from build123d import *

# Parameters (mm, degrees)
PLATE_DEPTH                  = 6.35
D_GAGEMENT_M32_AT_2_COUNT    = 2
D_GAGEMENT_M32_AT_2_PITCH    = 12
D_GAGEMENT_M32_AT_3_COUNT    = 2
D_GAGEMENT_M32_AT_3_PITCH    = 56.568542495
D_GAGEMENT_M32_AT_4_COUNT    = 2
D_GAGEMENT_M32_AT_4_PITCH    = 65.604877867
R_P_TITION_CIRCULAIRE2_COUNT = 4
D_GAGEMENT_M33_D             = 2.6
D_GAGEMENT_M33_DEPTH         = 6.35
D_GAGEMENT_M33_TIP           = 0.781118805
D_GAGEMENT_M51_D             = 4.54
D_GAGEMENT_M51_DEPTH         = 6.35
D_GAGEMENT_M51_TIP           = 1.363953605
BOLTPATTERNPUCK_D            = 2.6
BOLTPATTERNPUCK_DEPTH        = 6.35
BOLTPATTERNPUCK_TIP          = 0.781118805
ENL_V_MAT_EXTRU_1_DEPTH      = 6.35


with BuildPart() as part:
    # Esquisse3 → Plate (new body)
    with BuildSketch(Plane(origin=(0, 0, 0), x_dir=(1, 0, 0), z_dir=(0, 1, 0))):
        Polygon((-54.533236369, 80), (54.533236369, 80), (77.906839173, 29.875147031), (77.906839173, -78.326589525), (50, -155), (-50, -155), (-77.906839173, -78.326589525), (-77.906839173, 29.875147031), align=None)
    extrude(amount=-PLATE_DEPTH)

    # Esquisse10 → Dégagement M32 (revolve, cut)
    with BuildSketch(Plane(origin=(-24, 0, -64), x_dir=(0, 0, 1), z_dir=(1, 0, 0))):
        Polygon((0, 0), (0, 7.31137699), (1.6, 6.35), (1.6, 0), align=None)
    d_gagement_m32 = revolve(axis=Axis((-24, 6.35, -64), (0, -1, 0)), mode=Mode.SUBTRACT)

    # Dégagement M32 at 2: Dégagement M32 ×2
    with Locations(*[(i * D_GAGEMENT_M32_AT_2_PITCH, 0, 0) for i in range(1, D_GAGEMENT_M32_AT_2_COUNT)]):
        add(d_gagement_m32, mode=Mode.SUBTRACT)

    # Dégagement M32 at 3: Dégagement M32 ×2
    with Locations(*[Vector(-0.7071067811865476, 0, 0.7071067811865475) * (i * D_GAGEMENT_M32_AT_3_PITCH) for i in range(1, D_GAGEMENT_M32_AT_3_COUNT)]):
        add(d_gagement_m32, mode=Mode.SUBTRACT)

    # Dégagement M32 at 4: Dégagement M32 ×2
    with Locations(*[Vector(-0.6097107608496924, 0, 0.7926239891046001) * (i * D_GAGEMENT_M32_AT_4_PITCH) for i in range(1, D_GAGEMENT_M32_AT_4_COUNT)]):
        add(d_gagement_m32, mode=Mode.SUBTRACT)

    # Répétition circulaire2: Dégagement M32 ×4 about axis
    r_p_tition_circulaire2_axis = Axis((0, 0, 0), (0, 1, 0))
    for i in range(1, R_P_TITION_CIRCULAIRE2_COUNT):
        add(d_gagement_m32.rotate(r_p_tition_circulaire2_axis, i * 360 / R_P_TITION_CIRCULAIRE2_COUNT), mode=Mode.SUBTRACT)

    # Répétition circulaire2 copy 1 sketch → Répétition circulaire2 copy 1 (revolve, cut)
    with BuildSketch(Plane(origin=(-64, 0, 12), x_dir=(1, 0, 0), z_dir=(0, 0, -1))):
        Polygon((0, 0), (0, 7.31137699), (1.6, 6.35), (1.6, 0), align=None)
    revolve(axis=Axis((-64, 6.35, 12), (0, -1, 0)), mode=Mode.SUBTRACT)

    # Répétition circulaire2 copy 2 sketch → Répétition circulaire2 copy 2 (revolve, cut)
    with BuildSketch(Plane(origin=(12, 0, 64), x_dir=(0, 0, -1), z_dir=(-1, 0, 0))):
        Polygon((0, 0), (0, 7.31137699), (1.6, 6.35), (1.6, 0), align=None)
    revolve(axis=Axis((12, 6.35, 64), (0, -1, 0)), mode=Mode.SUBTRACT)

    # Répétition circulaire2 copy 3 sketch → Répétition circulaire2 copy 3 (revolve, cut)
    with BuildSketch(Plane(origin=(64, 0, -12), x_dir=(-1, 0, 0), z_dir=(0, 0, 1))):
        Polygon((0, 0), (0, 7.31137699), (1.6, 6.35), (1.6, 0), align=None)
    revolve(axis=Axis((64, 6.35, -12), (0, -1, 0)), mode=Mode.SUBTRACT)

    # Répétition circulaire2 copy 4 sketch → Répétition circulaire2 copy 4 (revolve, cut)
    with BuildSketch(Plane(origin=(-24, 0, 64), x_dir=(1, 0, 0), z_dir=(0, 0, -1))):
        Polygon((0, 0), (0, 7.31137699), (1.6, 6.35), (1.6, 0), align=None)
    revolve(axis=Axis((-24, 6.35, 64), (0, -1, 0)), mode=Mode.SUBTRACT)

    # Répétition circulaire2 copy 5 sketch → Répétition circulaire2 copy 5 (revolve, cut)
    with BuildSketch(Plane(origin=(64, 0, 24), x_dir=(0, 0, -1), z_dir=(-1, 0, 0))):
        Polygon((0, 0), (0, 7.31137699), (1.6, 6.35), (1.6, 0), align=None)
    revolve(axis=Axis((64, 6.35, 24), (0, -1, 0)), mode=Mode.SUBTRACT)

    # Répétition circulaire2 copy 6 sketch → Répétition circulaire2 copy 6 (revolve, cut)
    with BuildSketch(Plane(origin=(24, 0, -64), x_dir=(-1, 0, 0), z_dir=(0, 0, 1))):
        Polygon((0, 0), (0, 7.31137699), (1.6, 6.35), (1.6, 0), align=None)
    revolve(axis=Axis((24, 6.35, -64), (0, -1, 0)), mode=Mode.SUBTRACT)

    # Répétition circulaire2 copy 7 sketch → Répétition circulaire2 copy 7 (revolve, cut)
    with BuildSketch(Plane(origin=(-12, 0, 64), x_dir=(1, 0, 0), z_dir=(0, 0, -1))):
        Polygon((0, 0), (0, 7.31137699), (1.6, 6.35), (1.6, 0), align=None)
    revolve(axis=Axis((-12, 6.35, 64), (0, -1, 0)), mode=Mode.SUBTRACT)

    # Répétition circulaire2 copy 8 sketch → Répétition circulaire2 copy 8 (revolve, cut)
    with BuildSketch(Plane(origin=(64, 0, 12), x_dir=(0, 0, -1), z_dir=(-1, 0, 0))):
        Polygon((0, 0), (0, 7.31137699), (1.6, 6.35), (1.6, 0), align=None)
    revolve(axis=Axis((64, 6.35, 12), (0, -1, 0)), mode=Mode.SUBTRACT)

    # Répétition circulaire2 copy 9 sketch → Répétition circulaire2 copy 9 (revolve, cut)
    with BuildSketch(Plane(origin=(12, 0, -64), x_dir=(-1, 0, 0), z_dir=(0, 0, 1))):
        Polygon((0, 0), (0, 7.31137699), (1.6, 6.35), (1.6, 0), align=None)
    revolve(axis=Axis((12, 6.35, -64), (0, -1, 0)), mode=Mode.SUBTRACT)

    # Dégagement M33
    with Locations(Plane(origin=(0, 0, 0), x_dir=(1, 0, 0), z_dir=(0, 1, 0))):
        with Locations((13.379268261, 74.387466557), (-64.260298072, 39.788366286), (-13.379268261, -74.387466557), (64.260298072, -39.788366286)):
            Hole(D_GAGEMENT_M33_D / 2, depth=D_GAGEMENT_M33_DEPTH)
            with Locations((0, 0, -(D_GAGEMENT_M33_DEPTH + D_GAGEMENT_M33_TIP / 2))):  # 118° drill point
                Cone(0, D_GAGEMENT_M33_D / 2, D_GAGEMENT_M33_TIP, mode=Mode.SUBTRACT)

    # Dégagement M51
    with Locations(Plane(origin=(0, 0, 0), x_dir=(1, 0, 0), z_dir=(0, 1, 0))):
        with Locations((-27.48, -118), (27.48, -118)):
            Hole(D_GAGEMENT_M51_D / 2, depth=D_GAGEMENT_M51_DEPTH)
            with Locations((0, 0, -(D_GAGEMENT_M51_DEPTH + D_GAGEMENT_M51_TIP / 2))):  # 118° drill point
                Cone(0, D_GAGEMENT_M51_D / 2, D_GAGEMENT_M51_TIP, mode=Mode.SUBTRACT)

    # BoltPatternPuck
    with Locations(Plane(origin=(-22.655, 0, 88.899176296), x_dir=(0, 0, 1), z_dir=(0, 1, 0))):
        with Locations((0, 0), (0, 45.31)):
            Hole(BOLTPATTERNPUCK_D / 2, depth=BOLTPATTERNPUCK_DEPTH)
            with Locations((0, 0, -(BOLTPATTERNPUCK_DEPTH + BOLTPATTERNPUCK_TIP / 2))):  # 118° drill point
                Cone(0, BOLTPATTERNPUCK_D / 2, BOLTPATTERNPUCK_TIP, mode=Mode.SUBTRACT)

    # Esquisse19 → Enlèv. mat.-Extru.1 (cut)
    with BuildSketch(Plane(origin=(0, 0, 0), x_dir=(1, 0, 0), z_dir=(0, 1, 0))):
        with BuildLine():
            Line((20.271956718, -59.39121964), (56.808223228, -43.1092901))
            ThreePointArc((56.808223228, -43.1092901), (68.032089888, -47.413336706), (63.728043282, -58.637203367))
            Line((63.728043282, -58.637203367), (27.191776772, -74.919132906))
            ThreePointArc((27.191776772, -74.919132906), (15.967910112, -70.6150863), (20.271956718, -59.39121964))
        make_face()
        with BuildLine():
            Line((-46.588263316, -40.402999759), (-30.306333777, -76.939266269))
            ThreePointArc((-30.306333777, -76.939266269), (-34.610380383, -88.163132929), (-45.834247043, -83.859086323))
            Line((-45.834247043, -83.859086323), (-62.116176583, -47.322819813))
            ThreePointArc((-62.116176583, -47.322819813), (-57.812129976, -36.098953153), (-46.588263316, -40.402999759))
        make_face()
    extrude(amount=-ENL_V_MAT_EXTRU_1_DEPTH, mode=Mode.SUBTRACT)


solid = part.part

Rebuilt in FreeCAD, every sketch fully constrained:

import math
import FreeCAD as App
import Part
import Sketcher
from FreeCAD import Vector
Q = App.Units.Quantity

doc = App.newDocument("Part")
body = doc.addObject("PartDesign::Body", "Body")

sketch1 = body.newObject("Sketcher::SketchObject", "Sketch")
sketch1.AttachmentSupport = (doc.getObject("XZ_Plane"), [""])
sketch1.MapMode = "FlatFace"
sketch1.addGeometry(Part.LineSegment(Vector(55, -80, 0), Vector(-55, -80, 0)), False)
sketch1.addGeometry(Part.LineSegment(Vector(-55, -80, 0), Vector(-78, -30, 0)), False)
sketch1.addGeometry(Part.LineSegment(Vector(-78, -30, 0), Vector(-78, 78, 0)), False)
sketch1.addGeometry(Part.LineSegment(Vector(-78, 78, 0), Vector(-50, 155, 0)), False)
sketch1.addGeometry(Part.LineSegment(Vector(-50, 155, 0), Vector(50, 155, 0)), False)
sketch1.addGeometry(Part.LineSegment(Vector(50, 155, 0), Vector(78, 78, 0)), False)
sketch1.addGeometry(Part.LineSegment(Vector(78, 78, 0), Vector(78, -30, 0)), False)
sketch1.addGeometry(Part.LineSegment(Vector(78, -30, 0), Vector(55, -80, 0)), False)
sketch1.addConstraint(Sketcher.Constraint("Coincident", 0, 2, 1, 1))
sketch1.addConstraint(Sketcher.Constraint("Coincident", 1, 2, 2, 1))
sketch1.addConstraint(Sketcher.Constraint("Coincident", 2, 2, 3, 1))
sketch1.addConstraint(Sketcher.Constraint("Coincident", 3, 2, 4, 1))
sketch1.addConstraint(Sketcher.Constraint("Coincident", 4, 2, 5, 1))
sketch1.addConstraint(Sketcher.Constraint("Coincident", 5, 2, 6, 1))
sketch1.addConstraint(Sketcher.Constraint("Coincident", 6, 2, 7, 1))
sketch1.addConstraint(Sketcher.Constraint("Coincident", 7, 2, 0, 1))
sketch1.addConstraint(Sketcher.Constraint("Horizontal", 0))
sketch1.addConstraint(Sketcher.Constraint("Vertical", 2))
sketch1.addConstraint(Sketcher.Constraint("Horizontal", 4))
sketch1.addConstraint(Sketcher.Constraint("Vertical", 6))
sketch1.addConstraint(Sketcher.Constraint("Symmetric", 2, 2, 5, 2, -2))
sketch1.addConstraint(Sketcher.Constraint("Horizontal", 1, 2, 6, 2))
sketch1.addConstraint(Sketcher.Constraint("Equal", 3, 5))
sketch1.addConstraint(Sketcher.Constraint("Equal", 1, 7))
sketch1.addConstraint(Sketcher.Constraint("DistanceX", 4, 1, 4, 2, Q("100 mm")))
sketch1.addConstraint(Sketcher.Constraint("Angle", 1, Q("115 deg")))
sketch1.addConstraint(Sketcher.Constraint("Angle", 3, Q("70 deg")))
sketch1.addConstraint(Sketcher.Constraint("DistanceY", 0, 2, -1, 1, Q("80 mm")))
sketch1.addConstraint(Sketcher.Constraint("DistanceY", -1, 1, 3, 2, Q("155 mm")))
sketch1.addConstraint(Sketcher.Constraint("Distance", 3, Q("81.594139 mm")))
sketch1.addConstraint(Sketcher.Constraint("DistanceX", 0, 2, 0, 1, Q("109.066473 mm")))
pad1 = body.newObject("PartDesign::Pad", "Pad")
pad1.Profile = sketch1
pad1.Length = 6.35

sketch2 = body.newObject("Sketcher::SketchObject", "Sketch001")
sketch2.AttachmentSupport = (doc.getObject("YZ_Plane"), [""])
sketch2.MapMode = "FlatFace"
sketch2.AttachmentOffset = App.Placement(Vector(0, 0, -24), App.Rotation())
sketch2.addGeometry(Part.LineSegment(Vector(-7.3, -64, 0), Vector(0, -64, 0)), False)
sketch2.addGeometry(Part.LineSegment(Vector(0, -64, 0), Vector(0, -62.4, 0)), False)
sketch2.addGeometry(Part.LineSegment(Vector(0, -62.4, 0), Vector(-6.3, -62.4, 0)), False)
sketch2.addGeometry(Part.LineSegment(Vector(-6.3, -62.4, 0), Vector(-7.3, -64, 0)), False)
sketch2.addGeometry(Part.LineSegment(Vector(0, -64, 0), Vector(-7.3, -64, 0)), True)
sketch2.addConstraint(Sketcher.Constraint("Coincident", 0, 2, 1, 1))
sketch2.addConstraint(Sketcher.Constraint("Coincident", 1, 2, 2, 1))
sketch2.addConstraint(Sketcher.Constraint("Coincident", 2, 2, 3, 1))
sketch2.addConstraint(Sketcher.Constraint("Coincident", 3, 2, 0, 1))
sketch2.addConstraint(Sketcher.Constraint("Horizontal", 0))
sketch2.addConstraint(Sketcher.Constraint("Vertical", 1))
sketch2.addConstraint(Sketcher.Constraint("Horizontal", 2))
sketch2.addConstraint(Sketcher.Constraint("Horizontal", 4))
sketch2.addConstraint(Sketcher.Constraint("Coincident", 4, 1, 0, 2))
sketch2.addConstraint(Sketcher.Constraint("PointOnObject", 0, 2, -2))
sketch2.addConstraint(Sketcher.Constraint("Equal", 0, 4))
sketch2.addConstraint(Sketcher.Constraint("Angle", 3, Q("-121 deg")))
sketch2.addConstraint(Sketcher.Constraint("DistanceY", 1, 1, 1, 2, Q("1.6 mm")))
sketch2.addConstraint(Sketcher.Constraint("DistanceY", 0, 2, -1, 1, Q("64 mm")))
sketch2.addConstraint(Sketcher.Constraint("DistanceX", 2, 2, 2, 1, Q("6.35 mm")))
groove = body.newObject("PartDesign::Groove", "Groove")
groove.Profile = sketch2
groove.ReferenceAxis = (sketch2, ["Axis0"])
groove.Angle = 360
doc.recompute()

linearpattern = body.newObject("PartDesign::LinearPattern", "LinearPattern")
linearpattern.Originals = [groove]
linearpattern.Direction = (doc.getObject("X_Axis"), [""])
linearpattern.Mode = "offset"
linearpattern.Offset = 12
linearpattern.Occurrences = 2
body.Tip = linearpattern
doc.recompute()

datumline = body.newObject("PartDesign::Line", "DatumLine")
datumline.Placement = App.Placement(Vector(0, 0, 0), App.Rotation(Vector(0, 0, 1), Vector(-0.707106781, 0, 0.707106781)))
linearpattern2 = body.newObject("PartDesign::LinearPattern", "LinearPattern001")
linearpattern2.Originals = [groove]
linearpattern2.Direction = (datumline, [""])
linearpattern2.Mode = "offset"
linearpattern2.Offset = 56.568542
linearpattern2.Occurrences = 2
body.Tip = linearpattern2
doc.recompute()

datumline2 = body.newObject("PartDesign::Line", "DatumLine001")
datumline2.Placement = App.Placement(Vector(0, 0, 0), App.Rotation(Vector(0, 0, 1), Vector(-0.609710761, 0, 0.792623989)))
linearpattern3 = body.newObject("PartDesign::LinearPattern", "LinearPattern002")
linearpattern3.Originals = [groove]
linearpattern3.Direction = (datumline2, [""])
linearpattern3.Mode = "offset"
linearpattern3.Offset = 65.604878
linearpattern3.Occurrences = 2
body.Tip = linearpattern3
doc.recompute()

polarpattern = body.newObject("PartDesign::PolarPattern", "PolarPattern")
polarpattern.Originals = [groove]
polarpattern.Axis = (doc.getObject("Y_Axis"), [""])
polarpattern.Angle = 360
polarpattern.Occurrences = 4
body.Tip = polarpattern

sketch3 = body.newObject("Sketcher::SketchObject", "Sketch002")
sketch3.AttachmentSupport = (doc.getObject("XY_Plane"), [""])
sketch3.MapMode = "FlatFace"
sketch3.AttachmentOffset = App.Placement(Vector(0, 0, 12), App.Rotation())
sketch3.addGeometry(Part.LineSegment(Vector(-64, -7.3, 0), Vector(-64, 0, 0)), False)
sketch3.addGeometry(Part.LineSegment(Vector(-64, 0, 0), Vector(-62.4, 0, 0)), False)
sketch3.addGeometry(Part.LineSegment(Vector(-62.4, 0, 0), Vector(-62.4, -6.3, 0)), False)
sketch3.addGeometry(Part.LineSegment(Vector(-62.4, -6.3, 0), Vector(-64, -7.3, 0)), False)
sketch3.addGeometry(Part.LineSegment(Vector(-64, 0, 0), Vector(-64, -7.3, 0)), True)
sketch3.addConstraint(Sketcher.Constraint("Coincident", 0, 2, 1, 1))
sketch3.addConstraint(Sketcher.Constraint("Coincident", 1, 2, 2, 1))
sketch3.addConstraint(Sketcher.Constraint("Coincident", 2, 2, 3, 1))
sketch3.addConstraint(Sketcher.Constraint("Coincident", 3, 2, 0, 1))
sketch3.addConstraint(Sketcher.Constraint("Vertical", 0))
sketch3.addConstraint(Sketcher.Constraint("Horizontal", 1))
sketch3.addConstraint(Sketcher.Constraint("Vertical", 2))
sketch3.addConstraint(Sketcher.Constraint("Vertical", 4))
sketch3.addConstraint(Sketcher.Constraint("Coincident", 4, 1, 0, 2))
sketch3.addConstraint(Sketcher.Constraint("PointOnObject", 0, 2, -1))
sketch3.addConstraint(Sketcher.Constraint("Equal", 0, 4))
sketch3.addConstraint(Sketcher.Constraint("Angle", 3, Q("-149 deg")))
sketch3.addConstraint(Sketcher.Constraint("DistanceX", 1, 1, 1, 2, Q("1.6 mm")))
sketch3.addConstraint(Sketcher.Constraint("DistanceX", 0, 2, -1, 1, Q("64 mm")))
sketch3.addConstraint(Sketcher.Constraint("DistanceY", 2, 2, 2, 1, Q("6.35 mm")))
groove2 = body.newObject("PartDesign::Groove", "Groove001")
groove2.Profile = sketch3
groove2.ReferenceAxis = (sketch3, ["Axis0"])
groove2.Angle = 360

sketch4 = body.newObject("Sketcher::SketchObject", "Sketch003")
sketch4.AttachmentSupport = (doc.getObject("YZ_Plane"), [""])
sketch4.MapMode = "FlatFace"
sketch4.AttachmentOffset = App.Placement(Vector(0, 0, 12), App.Rotation())
sketch4.addGeometry(Part.LineSegment(Vector(-7.3, 64, 0), Vector(0, 64, 0)), False)
sketch4.addGeometry(Part.LineSegment(Vector(0, 64, 0), Vector(0, 62.4, 0)), False)
sketch4.addGeometry(Part.LineSegment(Vector(0, 62.4, 0), Vector(-6.3, 62.4, 0)), False)
sketch4.addGeometry(Part.LineSegment(Vector(-6.3, 62.4, 0), Vector(-7.3, 64, 0)), False)
sketch4.addGeometry(Part.LineSegment(Vector(0, 64, 0), Vector(-7.3, 64, 0)), True)
sketch4.addConstraint(Sketcher.Constraint("Coincident", 0, 2, 1, 1))
sketch4.addConstraint(Sketcher.Constraint("Coincident", 1, 2, 2, 1))
sketch4.addConstraint(Sketcher.Constraint("Coincident", 2, 2, 3, 1))
sketch4.addConstraint(Sketcher.Constraint("Coincident", 3, 2, 0, 1))
sketch4.addConstraint(Sketcher.Constraint("Horizontal", 0))
sketch4.addConstraint(Sketcher.Constraint("Vertical", 1))
sketch4.addConstraint(Sketcher.Constraint("Horizontal", 2))
sketch4.addConstraint(Sketcher.Constraint("Horizontal", 4))
sketch4.addConstraint(Sketcher.Constraint("Coincident", 4, 1, 0, 2))
sketch4.addConstraint(Sketcher.Constraint("PointOnObject", 0, 2, -2))
sketch4.addConstraint(Sketcher.Constraint("Equal", 0, 4))
sketch4.addConstraint(Sketcher.Constraint("Angle", 3, Q("121 deg")))
sketch4.addConstraint(Sketcher.Constraint("DistanceY", 1, 2, 1, 1, Q("1.6 mm")))
sketch4.addConstraint(Sketcher.Constraint("DistanceY", -1, 1, 0, 2, Q("64 mm")))
sketch4.addConstraint(Sketcher.Constraint("DistanceX", 2, 2, 2, 1, Q("6.35 mm")))
groove3 = body.newObject("PartDesign::Groove", "Groove002")
groove3.Profile = sketch4
groove3.ReferenceAxis = (sketch4, ["Axis0"])
groove3.Angle = 360

sketch5 = body.newObject("Sketcher::SketchObject", "Sketch004")
sketch5.AttachmentSupport = (doc.getObject("XY_Plane"), [""])
sketch5.MapMode = "FlatFace"
sketch5.AttachmentOffset = App.Placement(Vector(0, 0, -12), App.Rotation())
sketch5.addGeometry(Part.LineSegment(Vector(64, -7.3, 0), Vector(64, 0, 0)), False)
sketch5.addGeometry(Part.LineSegment(Vector(64, 0, 0), Vector(62.4, 0, 0)), False)
sketch5.addGeometry(Part.LineSegment(Vector(62.4, 0, 0), Vector(62.4, -6.3, 0)), False)
sketch5.addGeometry(Part.LineSegment(Vector(62.4, -6.3, 0), Vector(64, -7.3, 0)), False)
sketch5.addGeometry(Part.LineSegment(Vector(64, 0, 0), Vector(64, -7.3, 0)), True)
sketch5.addConstraint(Sketcher.Constraint("Coincident", 0, 2, 1, 1))
sketch5.addConstraint(Sketcher.Constraint("Coincident", 1, 2, 2, 1))
sketch5.addConstraint(Sketcher.Constraint("Coincident", 2, 2, 3, 1))
sketch5.addConstraint(Sketcher.Constraint("Coincident", 3, 2, 0, 1))
sketch5.addConstraint(Sketcher.Constraint("Vertical", 0))
sketch5.addConstraint(Sketcher.Constraint("Horizontal", 1))
sketch5.addConstraint(Sketcher.Constraint("Vertical", 2))
sketch5.addConstraint(Sketcher.Constraint("Vertical", 4))
sketch5.addConstraint(Sketcher.Constraint("Coincident", 4, 1, 0, 2))
sketch5.addConstraint(Sketcher.Constraint("PointOnObject", 0, 2, -1))
sketch5.addConstraint(Sketcher.Constraint("Equal", 0, 4))
sketch5.addConstraint(Sketcher.Constraint("Angle", 3, Q("-31 deg")))
sketch5.addConstraint(Sketcher.Constraint("DistanceX", 1, 2, 1, 1, Q("1.6 mm")))
sketch5.addConstraint(Sketcher.Constraint("DistanceX", -1, 1, 0, 2, Q("64 mm")))
sketch5.addConstraint(Sketcher.Constraint("DistanceY", 2, 2, 2, 1, Q("6.35 mm")))
groove4 = body.newObject("PartDesign::Groove", "Groove003")
groove4.Profile = sketch5
groove4.ReferenceAxis = (sketch5, ["Axis0"])
groove4.Angle = 360

sketch6 = body.newObject("Sketcher::SketchObject", "Sketch005")
sketch6.AttachmentSupport = (doc.getObject("XY_Plane"), [""])
sketch6.MapMode = "FlatFace"
sketch6.AttachmentOffset = App.Placement(Vector(0, 0, 64), App.Rotation())
sketch6.addGeometry(Part.LineSegment(Vector(-24, -7.3, 0), Vector(-24, 0, 0)), False)
sketch6.addGeometry(Part.LineSegment(Vector(-24, 0, 0), Vector(-22.4, 0, 0)), False)
sketch6.addGeometry(Part.LineSegment(Vector(-22.4, 0, 0), Vector(-22.4, -6.3, 0)), False)
sketch6.addGeometry(Part.LineSegment(Vector(-22.4, -6.3, 0), Vector(-24, -7.3, 0)), False)
sketch6.addGeometry(Part.LineSegment(Vector(-24, 0, 0), Vector(-24, -7.3, 0)), True)
sketch6.addConstraint(Sketcher.Constraint("Coincident", 0, 2, 1, 1))
sketch6.addConstraint(Sketcher.Constraint("Coincident", 1, 2, 2, 1))
sketch6.addConstraint(Sketcher.Constraint("Coincident", 2, 2, 3, 1))
sketch6.addConstraint(Sketcher.Constraint("Coincident", 3, 2, 0, 1))
sketch6.addConstraint(Sketcher.Constraint("Vertical", 0))
sketch6.addConstraint(Sketcher.Constraint("Horizontal", 1))
sketch6.addConstraint(Sketcher.Constraint("Vertical", 2))
sketch6.addConstraint(Sketcher.Constraint("Vertical", 4))
sketch6.addConstraint(Sketcher.Constraint("Coincident", 4, 1, 0, 2))
sketch6.addConstraint(Sketcher.Constraint("PointOnObject", 0, 2, -1))
sketch6.addConstraint(Sketcher.Constraint("Equal", 0, 4))
sketch6.addConstraint(Sketcher.Constraint("Angle", 3, Q("-149 deg")))
sketch6.addConstraint(Sketcher.Constraint("DistanceX", 1, 1, 1, 2, Q("1.6 mm")))
sketch6.addConstraint(Sketcher.Constraint("DistanceX", 0, 2, -1, 1, Q("24 mm")))
sketch6.addConstraint(Sketcher.Constraint("DistanceY", 2, 2, 2, 1, Q("6.35 mm")))
groove5 = body.newObject("PartDesign::Groove", "Groove004")
groove5.Profile = sketch6
groove5.ReferenceAxis = (sketch6, ["Axis0"])
groove5.Angle = 360

sketch7 = body.newObject("Sketcher::SketchObject", "Sketch006")
sketch7.AttachmentSupport = (doc.getObject("YZ_Plane"), [""])
sketch7.MapMode = "FlatFace"
sketch7.AttachmentOffset = App.Placement(Vector(0, 0, 64), App.Rotation())
sketch7.addGeometry(Part.LineSegment(Vector(-7.3, 24, 0), Vector(0, 24, 0)), False)
sketch7.addGeometry(Part.LineSegment(Vector(0, 24, 0), Vector(0, 22.4, 0)), False)
sketch7.addGeometry(Part.LineSegment(Vector(0, 22.4, 0), Vector(-6.3, 22.4, 0)), False)
sketch7.addGeometry(Part.LineSegment(Vector(-6.3, 22.4, 0), Vector(-7.3, 24, 0)), False)
sketch7.addGeometry(Part.LineSegment(Vector(0, 24, 0), Vector(-7.3, 24, 0)), True)
sketch7.addConstraint(Sketcher.Constraint("Coincident", 0, 2, 1, 1))
sketch7.addConstraint(Sketcher.Constraint("Coincident", 1, 2, 2, 1))
sketch7.addConstraint(Sketcher.Constraint("Coincident", 2, 2, 3, 1))
sketch7.addConstraint(Sketcher.Constraint("Coincident", 3, 2, 0, 1))
sketch7.addConstraint(Sketcher.Constraint("Horizontal", 0))
sketch7.addConstraint(Sketcher.Constraint("Vertical", 1))
sketch7.addConstraint(Sketcher.Constraint("Horizontal", 2))
sketch7.addConstraint(Sketcher.Constraint("Horizontal", 4))
sketch7.addConstraint(Sketcher.Constraint("Coincident", 4, 1, 0, 2))
sketch7.addConstraint(Sketcher.Constraint("PointOnObject", 0, 2, -2))
sketch7.addConstraint(Sketcher.Constraint("Equal", 0, 4))
sketch7.addConstraint(Sketcher.Constraint("Angle", 3, Q("121 deg")))
sketch7.addConstraint(Sketcher.Constraint("DistanceY", 1, 2, 1, 1, Q("1.6 mm")))
sketch7.addConstraint(Sketcher.Constraint("DistanceY", -1, 1, 0, 2, Q("24 mm")))
sketch7.addConstraint(Sketcher.Constraint("DistanceX", 2, 2, 2, 1, Q("6.35 mm")))
groove6 = body.newObject("PartDesign::Groove", "Groove005")
groove6.Profile = sketch7
groove6.ReferenceAxis = (sketch7, ["Axis0"])
groove6.Angle = 360

sketch8 = body.newObject("Sketcher::SketchObject", "Sketch007")
sketch8.AttachmentSupport = (doc.getObject("XY_Plane"), [""])
sketch8.MapMode = "FlatFace"
sketch8.AttachmentOffset = App.Placement(Vector(0, 0, -64), App.Rotation())
sketch8.addGeometry(Part.LineSegment(Vector(24, -7.3, 0), Vector(24, 0, 0)), False)
sketch8.addGeometry(Part.LineSegment(Vector(24, 0, 0), Vector(22.4, 0, 0)), False)
sketch8.addGeometry(Part.LineSegment(Vector(22.4, 0, 0), Vector(22.4, -6.3, 0)), False)
sketch8.addGeometry(Part.LineSegment(Vector(22.4, -6.3, 0), Vector(24, -7.3, 0)), False)
sketch8.addGeometry(Part.LineSegment(Vector(24, 0, 0), Vector(24, -7.3, 0)), True)
sketch8.addConstraint(Sketcher.Constraint("Coincident", 0, 2, 1, 1))
sketch8.addConstraint(Sketcher.Constraint("Coincident", 1, 2, 2, 1))
sketch8.addConstraint(Sketcher.Constraint("Coincident", 2, 2, 3, 1))
sketch8.addConstraint(Sketcher.Constraint("Coincident", 3, 2, 0, 1))
sketch8.addConstraint(Sketcher.Constraint("Vertical", 0))
sketch8.addConstraint(Sketcher.Constraint("Horizontal", 1))
sketch8.addConstraint(Sketcher.Constraint("Vertical", 2))
sketch8.addConstraint(Sketcher.Constraint("Vertical", 4))
sketch8.addConstraint(Sketcher.Constraint("Coincident", 4, 1, 0, 2))
sketch8.addConstraint(Sketcher.Constraint("PointOnObject", 0, 2, -1))
sketch8.addConstraint(Sketcher.Constraint("Equal", 0, 4))
sketch8.addConstraint(Sketcher.Constraint("Angle", 3, Q("-31 deg")))
sketch8.addConstraint(Sketcher.Constraint("DistanceX", 1, 2, 1, 1, Q("1.6 mm")))
sketch8.addConstraint(Sketcher.Constraint("DistanceX", -1, 1, 0, 2, Q("24 mm")))
sketch8.addConstraint(Sketcher.Constraint("DistanceY", 2, 2, 2, 1, Q("6.35 mm")))
groove7 = body.newObject("PartDesign::Groove", "Groove006")
groove7.Profile = sketch8
groove7.ReferenceAxis = (sketch8, ["Axis0"])
groove7.Angle = 360

sketch9 = body.newObject("Sketcher::SketchObject", "Sketch008")
sketch9.AttachmentSupport = (doc.getObject("XY_Plane"), [""])
sketch9.MapMode = "FlatFace"
sketch9.AttachmentOffset = App.Placement(Vector(0, 0, 64), App.Rotation())
sketch9.addGeometry(Part.LineSegment(Vector(-12, -7.3, 0), Vector(-12, 0, 0)), False)
sketch9.addGeometry(Part.LineSegment(Vector(-12, 0, 0), Vector(-10.4, 0, 0)), False)
sketch9.addGeometry(Part.LineSegment(Vector(-10.4, 0, 0), Vector(-10.4, -6.3, 0)), False)
sketch9.addGeometry(Part.LineSegment(Vector(-10.4, -6.3, 0), Vector(-12, -7.3, 0)), False)
sketch9.addGeometry(Part.LineSegment(Vector(-12, 0, 0), Vector(-12, -7.3, 0)), True)
sketch9.addConstraint(Sketcher.Constraint("Coincident", 0, 2, 1, 1))
sketch9.addConstraint(Sketcher.Constraint("Coincident", 1, 2, 2, 1))
sketch9.addConstraint(Sketcher.Constraint("Coincident", 2, 2, 3, 1))
sketch9.addConstraint(Sketcher.Constraint("Coincident", 3, 2, 0, 1))
sketch9.addConstraint(Sketcher.Constraint("Vertical", 0))
sketch9.addConstraint(Sketcher.Constraint("Horizontal", 1))
sketch9.addConstraint(Sketcher.Constraint("Vertical", 2))
sketch9.addConstraint(Sketcher.Constraint("Vertical", 4))
sketch9.addConstraint(Sketcher.Constraint("Coincident", 4, 1, 0, 2))
sketch9.addConstraint(Sketcher.Constraint("PointOnObject", 0, 2, -1))
sketch9.addConstraint(Sketcher.Constraint("Equal", 0, 4))
sketch9.addConstraint(Sketcher.Constraint("Angle", 3, Q("-149 deg")))
sketch9.addConstraint(Sketcher.Constraint("DistanceX", 1, 1, 1, 2, Q("1.6 mm")))
sketch9.addConstraint(Sketcher.Constraint("DistanceX", 0, 2, -1, 1, Q("12 mm")))
sketch9.addConstraint(Sketcher.Constraint("DistanceY", 2, 2, 2, 1, Q("6.35 mm")))
groove8 = body.newObject("PartDesign::Groove", "Groove007")
groove8.Profile = sketch9
groove8.ReferenceAxis = (sketch9, ["Axis0"])
groove8.Angle = 360

sketch10 = body.newObject("Sketcher::SketchObject", "Sketch009")
sketch10.AttachmentSupport = (doc.getObject("YZ_Plane"), [""])
sketch10.MapMode = "FlatFace"
sketch10.AttachmentOffset = App.Placement(Vector(0, 0, 64), App.Rotation())
sketch10.addGeometry(Part.LineSegment(Vector(-7.3, 12, 0), Vector(0, 12, 0)), False)
sketch10.addGeometry(Part.LineSegment(Vector(0, 12, 0), Vector(0, 10.4, 0)), False)
sketch10.addGeometry(Part.LineSegment(Vector(0, 10.4, 0), Vector(-6.3, 10.4, 0)), False)
sketch10.addGeometry(Part.LineSegment(Vector(-6.3, 10.4, 0), Vector(-7.3, 12, 0)), False)
sketch10.addGeometry(Part.LineSegment(Vector(0, 12, 0), Vector(-7.3, 12, 0)), True)
sketch10.addConstraint(Sketcher.Constraint("Coincident", 0, 2, 1, 1))
sketch10.addConstraint(Sketcher.Constraint("Coincident", 1, 2, 2, 1))
sketch10.addConstraint(Sketcher.Constraint("Coincident", 2, 2, 3, 1))
sketch10.addConstraint(Sketcher.Constraint("Coincident", 3, 2, 0, 1))
sketch10.addConstraint(Sketcher.Constraint("Horizontal", 0))
sketch10.addConstraint(Sketcher.Constraint("Vertical", 1))
sketch10.addConstraint(Sketcher.Constraint("Horizontal", 2))
sketch10.addConstraint(Sketcher.Constraint("Horizontal", 4))
sketch10.addConstraint(Sketcher.Constraint("Coincident", 4, 1, 0, 2))
sketch10.addConstraint(Sketcher.Constraint("PointOnObject", 0, 2, -2))
sketch10.addConstraint(Sketcher.Constraint("Equal", 0, 4))
sketch10.addConstraint(Sketcher.Constraint("Angle", 3, Q("121 deg")))
sketch10.addConstraint(Sketcher.Constraint("DistanceY", 1, 2, 1, 1, Q("1.6 mm")))
sketch10.addConstraint(Sketcher.Constraint("DistanceY", -1, 1, 0, 2, Q("12 mm")))
sketch10.addConstraint(Sketcher.Constraint("DistanceX", 2, 2, 2, 1, Q("6.35 mm")))
groove9 = body.newObject("PartDesign::Groove", "Groove008")
groove9.Profile = sketch10
groove9.ReferenceAxis = (sketch10, ["Axis0"])
groove9.Angle = 360

sketch11 = body.newObject("Sketcher::SketchObject", "Sketch010")
sketch11.AttachmentSupport = (doc.getObject("XY_Plane"), [""])
sketch11.MapMode = "FlatFace"
sketch11.AttachmentOffset = App.Placement(Vector(0, 0, -64), App.Rotation())
sketch11.addGeometry(Part.LineSegment(Vector(12, -7.3, 0), Vector(12, 0, 0)), False)
sketch11.addGeometry(Part.LineSegment(Vector(12, 0, 0), Vector(10.4, 0, 0)), False)
sketch11.addGeometry(Part.LineSegment(Vector(10.4, 0, 0), Vector(10.4, -6.3, 0)), False)
sketch11.addGeometry(Part.LineSegment(Vector(10.4, -6.3, 0), Vector(12, -7.3, 0)), False)
sketch11.addGeometry(Part.LineSegment(Vector(12, 0, 0), Vector(12, -7.3, 0)), True)
sketch11.addConstraint(Sketcher.Constraint("Coincident", 0, 2, 1, 1))
sketch11.addConstraint(Sketcher.Constraint("Coincident", 1, 2, 2, 1))
sketch11.addConstraint(Sketcher.Constraint("Coincident", 2, 2, 3, 1))
sketch11.addConstraint(Sketcher.Constraint("Coincident", 3, 2, 0, 1))
sketch11.addConstraint(Sketcher.Constraint("Vertical", 0))
sketch11.addConstraint(Sketcher.Constraint("Horizontal", 1))
sketch11.addConstraint(Sketcher.Constraint("Vertical", 2))
sketch11.addConstraint(Sketcher.Constraint("Vertical", 4))
sketch11.addConstraint(Sketcher.Constraint("Coincident", 4, 1, 0, 2))
sketch11.addConstraint(Sketcher.Constraint("PointOnObject", 0, 2, -1))
sketch11.addConstraint(Sketcher.Constraint("Equal", 0, 4))
sketch11.addConstraint(Sketcher.Constraint("Angle", 3, Q("-31 deg")))
sketch11.addConstraint(Sketcher.Constraint("DistanceX", 1, 2, 1, 1, Q("1.6 mm")))
sketch11.addConstraint(Sketcher.Constraint("DistanceX", -1, 1, 0, 2, Q("12 mm")))
sketch11.addConstraint(Sketcher.Constraint("DistanceY", 2, 2, 2, 1, Q("6.35 mm")))
groove10 = body.newObject("PartDesign::Groove", "Groove009")
groove10.Profile = sketch11
groove10.ReferenceAxis = (sketch11, ["Axis0"])
groove10.Angle = 360

sketch12 = body.newObject("Sketcher::SketchObject", "Sketch011")
sketch12.AttachmentSupport = (doc.getObject("XZ_Plane"), [""])
sketch12.MapMode = "FlatFace"
sketch12.addGeometry(Part.Circle(Vector(13.4, -74.4, 0), Vector(0, 0, 1), 1.3), False)
sketch12.addGeometry(Part.Circle(Vector(-64.3, -39.8, 0), Vector(0, 0, 1), 1.3), False)
sketch12.addGeometry(Part.Circle(Vector(-13.4, 74.4, 0), Vector(0, 0, 1), 1.3), False)
sketch12.addGeometry(Part.Circle(Vector(64.3, 39.8, 0), Vector(0, 0, 1), 1.3), False)
sketch12.addConstraint(Sketcher.Constraint("Equal", 0, 1))
sketch12.addConstraint(Sketcher.Constraint("Equal", 1, 2))
sketch12.addConstraint(Sketcher.Constraint("Equal", 2, 3))
sketch12.addConstraint(Sketcher.Constraint("Symmetric", 0, 3, 2, 3, -1, 1))
sketch12.addConstraint(Sketcher.Constraint("Symmetric", 1, 3, 3, 3, -1, 1))
sketch12.addConstraint(Sketcher.Constraint("Diameter", 0, Q("2.6 mm")))
sketch12.addConstraint(Sketcher.Constraint("DistanceX", 1, 3, -1, 1, Q("64.260298 mm")))
sketch12.addConstraint(Sketcher.Constraint("DistanceY", 0, 3, 1, 3, Q("34.5991 mm")))
sketch12.addConstraint(Sketcher.Constraint("DistanceX", -1, 1, 0, 3, Q("13.379268 mm")))
sketch12.addConstraint(Sketcher.Constraint("DistanceY", 0, 3, -1, 1, Q("74.387467 mm")))
doc.recompute()
hole = body.newObject("PartDesign::Hole", "Hole")
hole.Profile = sketch12
hole.ThreadType = "None"
hole.Diameter = 2.6
hole.DepthType = "Dimension"
hole.Depth = 6.35
hole.DrillPoint = "Angled"
hole.DrillPointAngle = 118
hole.Reversed = True

sketch13 = body.newObject("Sketcher::SketchObject", "Sketch012")
sketch13.AttachmentSupport = (doc.getObject("XZ_Plane"), [""])
sketch13.MapMode = "FlatFace"
sketch13.addGeometry(Part.Circle(Vector(-27.5, 118, 0), Vector(0, 0, 1), 2.3), False)
sketch13.addGeometry(Part.Circle(Vector(27.5, 118, 0), Vector(0, 0, 1), 2.3), False)
sketch13.addConstraint(Sketcher.Constraint("Equal", 0, 1))
sketch13.addConstraint(Sketcher.Constraint("Symmetric", 0, 3, 1, 3, -2))
sketch13.addConstraint(Sketcher.Constraint("Diameter", 0, Q("4.54 mm")))
sketch13.addConstraint(Sketcher.Constraint("DistanceY", -1, 1, 0, 3, Q("118 mm")))
sketch13.addConstraint(Sketcher.Constraint("DistanceX", 0, 3, -1, 1, Q("27.48 mm")))
doc.recompute()
hole2 = body.newObject("PartDesign::Hole", "Hole001")
hole2.Profile = sketch13
hole2.ThreadType = "None"
hole2.Diameter = 4.54
hole2.DepthType = "Dimension"
hole2.Depth = 6.35
hole2.DrillPoint = "Angled"
hole2.DrillPointAngle = 118
hole2.Reversed = True

sketch14 = body.newObject("Sketcher::SketchObject", "Sketch013")
sketch14.AttachmentSupport = (doc.getObject("XZ_Plane"), [""])
sketch14.MapMode = "FlatFace"
sketch14.addGeometry(Part.Circle(Vector(-22.7, 88.9, 0), Vector(0, 0, 1), 1.3), False)
sketch14.addGeometry(Part.Circle(Vector(22.7, 88.9, 0), Vector(0, 0, 1), 1.3), False)
sketch14.addConstraint(Sketcher.Constraint("Equal", 0, 1))
sketch14.addConstraint(Sketcher.Constraint("Symmetric", 0, 3, 1, 3, -2))
sketch14.addConstraint(Sketcher.Constraint("Diameter", 0, Q("2.6 mm")))
sketch14.addConstraint(Sketcher.Constraint("DistanceX", 0, 3, 1, 3, Q("45.31 mm")))
sketch14.addConstraint(Sketcher.Constraint("DistanceY", -1, 1, 0, 3, Q("88.899176 mm")))
doc.recompute()
hole3 = body.newObject("PartDesign::Hole", "Hole002")
hole3.Profile = sketch14
hole3.ThreadType = "None"
hole3.Diameter = 2.6
hole3.DepthType = "Dimension"
hole3.Depth = 6.35
hole3.DrillPoint = "Angled"
hole3.DrillPointAngle = 118
hole3.Reversed = True

sketch15 = body.newObject("Sketcher::SketchObject", "Sketch014")
sketch15.AttachmentSupport = (doc.getObject("XZ_Plane"), [""])
sketch15.MapMode = "FlatFace"
sketch15.addGeometry(Part.LineSegment(Vector(57, 43, 0), Vector(20, 59, 0)), False)
sketch15.addGeometry(Part.ArcOfCircle(Part.Circle(Vector(24, 67, 0), Vector(0, 0, 1), 8), math.radians(66), math.radians(246)), False)
sketch15.addGeometry(Part.LineSegment(Vector(27, 75, 0), Vector(64, 59, 0)), False)
sketch15.addGeometry(Part.ArcOfCircle(Part.Circle(Vector(60, 51, 0), Vector(0, 0, 1), 8), math.radians(-114), math.radians(66)), False)
sketch15.addGeometry(Part.LineSegment(Vector(-30, 77, 0), Vector(-47, 40, 0)), False)
sketch15.addGeometry(Part.ArcOfCircle(Part.Circle(Vector(-54, 44, 0), Vector(0, 0, 1), 8), math.radians(156), math.radians(336)), False)
sketch15.addGeometry(Part.LineSegment(Vector(-62, 47, 0), Vector(-46, 84, 0)), False)
sketch15.addGeometry(Part.ArcOfCircle(Part.Circle(Vector(-38, 80, 0), Vector(0, 0, 1), 8), math.radians(-24), math.radians(156)), False)
sketch15.addConstraint(Sketcher.Constraint("Tangent", 0, 2, 1, 2))
sketch15.addConstraint(Sketcher.Constraint("Tangent", 1, 1, 2, 1))
sketch15.addConstraint(Sketcher.Constraint("Tangent", 2, 2, 3, 2))
sketch15.addConstraint(Sketcher.Constraint("Tangent", 3, 1, 0, 1))
sketch15.addConstraint(Sketcher.Constraint("Tangent", 4, 2, 5, 2))
sketch15.addConstraint(Sketcher.Constraint("Tangent", 5, 1, 6, 1))
sketch15.addConstraint(Sketcher.Constraint("Tangent", 6, 2, 7, 2))
sketch15.addConstraint(Sketcher.Constraint("Tangent", 7, 1, 4, 1))
sketch15.addConstraint(Sketcher.Constraint("Equal", 1, 3))
sketch15.addConstraint(Sketcher.Constraint("Equal", 3, 5))
sketch15.addConstraint(Sketcher.Constraint("Equal", 5, 7))
sketch15.addConstraint(Sketcher.Constraint("Perpendicular", 2, 4))
sketch15.addConstraint(Sketcher.Constraint("Equal", 2, 4))
sketch15.addConstraint(Sketcher.Constraint("Radius", 1, Q("8.5 mm")))
sketch15.addConstraint(Sketcher.Constraint("Distance", 0, Q("40 mm")))
sketch15.addConstraint(Sketcher.Constraint("DistanceY", -1, 1, 4, 2, Q("40.403 mm")))
sketch15.addConstraint(Sketcher.Constraint("DistanceY", 1, 3, 7, 3, Q("13.244 mm")))
sketch15.addConstraint(Sketcher.Constraint("DistanceY", 5, 1, 0, 2, Q("12.0684 mm")))
sketch15.addConstraint(Sketcher.Constraint("DistanceX", 5, 3, -1, 1, Q("54.35222 mm")))
sketch15.addConstraint(Sketcher.Constraint("DistanceX", 4, 2, 0, 2, Q("66.86022 mm")))
pocket1 = body.newObject("PartDesign::Pocket", "Pocket")
pocket1.Profile = sketch15
pocket1.Length = 6.35
pocket1.Reversed = True

doc.recompute()
